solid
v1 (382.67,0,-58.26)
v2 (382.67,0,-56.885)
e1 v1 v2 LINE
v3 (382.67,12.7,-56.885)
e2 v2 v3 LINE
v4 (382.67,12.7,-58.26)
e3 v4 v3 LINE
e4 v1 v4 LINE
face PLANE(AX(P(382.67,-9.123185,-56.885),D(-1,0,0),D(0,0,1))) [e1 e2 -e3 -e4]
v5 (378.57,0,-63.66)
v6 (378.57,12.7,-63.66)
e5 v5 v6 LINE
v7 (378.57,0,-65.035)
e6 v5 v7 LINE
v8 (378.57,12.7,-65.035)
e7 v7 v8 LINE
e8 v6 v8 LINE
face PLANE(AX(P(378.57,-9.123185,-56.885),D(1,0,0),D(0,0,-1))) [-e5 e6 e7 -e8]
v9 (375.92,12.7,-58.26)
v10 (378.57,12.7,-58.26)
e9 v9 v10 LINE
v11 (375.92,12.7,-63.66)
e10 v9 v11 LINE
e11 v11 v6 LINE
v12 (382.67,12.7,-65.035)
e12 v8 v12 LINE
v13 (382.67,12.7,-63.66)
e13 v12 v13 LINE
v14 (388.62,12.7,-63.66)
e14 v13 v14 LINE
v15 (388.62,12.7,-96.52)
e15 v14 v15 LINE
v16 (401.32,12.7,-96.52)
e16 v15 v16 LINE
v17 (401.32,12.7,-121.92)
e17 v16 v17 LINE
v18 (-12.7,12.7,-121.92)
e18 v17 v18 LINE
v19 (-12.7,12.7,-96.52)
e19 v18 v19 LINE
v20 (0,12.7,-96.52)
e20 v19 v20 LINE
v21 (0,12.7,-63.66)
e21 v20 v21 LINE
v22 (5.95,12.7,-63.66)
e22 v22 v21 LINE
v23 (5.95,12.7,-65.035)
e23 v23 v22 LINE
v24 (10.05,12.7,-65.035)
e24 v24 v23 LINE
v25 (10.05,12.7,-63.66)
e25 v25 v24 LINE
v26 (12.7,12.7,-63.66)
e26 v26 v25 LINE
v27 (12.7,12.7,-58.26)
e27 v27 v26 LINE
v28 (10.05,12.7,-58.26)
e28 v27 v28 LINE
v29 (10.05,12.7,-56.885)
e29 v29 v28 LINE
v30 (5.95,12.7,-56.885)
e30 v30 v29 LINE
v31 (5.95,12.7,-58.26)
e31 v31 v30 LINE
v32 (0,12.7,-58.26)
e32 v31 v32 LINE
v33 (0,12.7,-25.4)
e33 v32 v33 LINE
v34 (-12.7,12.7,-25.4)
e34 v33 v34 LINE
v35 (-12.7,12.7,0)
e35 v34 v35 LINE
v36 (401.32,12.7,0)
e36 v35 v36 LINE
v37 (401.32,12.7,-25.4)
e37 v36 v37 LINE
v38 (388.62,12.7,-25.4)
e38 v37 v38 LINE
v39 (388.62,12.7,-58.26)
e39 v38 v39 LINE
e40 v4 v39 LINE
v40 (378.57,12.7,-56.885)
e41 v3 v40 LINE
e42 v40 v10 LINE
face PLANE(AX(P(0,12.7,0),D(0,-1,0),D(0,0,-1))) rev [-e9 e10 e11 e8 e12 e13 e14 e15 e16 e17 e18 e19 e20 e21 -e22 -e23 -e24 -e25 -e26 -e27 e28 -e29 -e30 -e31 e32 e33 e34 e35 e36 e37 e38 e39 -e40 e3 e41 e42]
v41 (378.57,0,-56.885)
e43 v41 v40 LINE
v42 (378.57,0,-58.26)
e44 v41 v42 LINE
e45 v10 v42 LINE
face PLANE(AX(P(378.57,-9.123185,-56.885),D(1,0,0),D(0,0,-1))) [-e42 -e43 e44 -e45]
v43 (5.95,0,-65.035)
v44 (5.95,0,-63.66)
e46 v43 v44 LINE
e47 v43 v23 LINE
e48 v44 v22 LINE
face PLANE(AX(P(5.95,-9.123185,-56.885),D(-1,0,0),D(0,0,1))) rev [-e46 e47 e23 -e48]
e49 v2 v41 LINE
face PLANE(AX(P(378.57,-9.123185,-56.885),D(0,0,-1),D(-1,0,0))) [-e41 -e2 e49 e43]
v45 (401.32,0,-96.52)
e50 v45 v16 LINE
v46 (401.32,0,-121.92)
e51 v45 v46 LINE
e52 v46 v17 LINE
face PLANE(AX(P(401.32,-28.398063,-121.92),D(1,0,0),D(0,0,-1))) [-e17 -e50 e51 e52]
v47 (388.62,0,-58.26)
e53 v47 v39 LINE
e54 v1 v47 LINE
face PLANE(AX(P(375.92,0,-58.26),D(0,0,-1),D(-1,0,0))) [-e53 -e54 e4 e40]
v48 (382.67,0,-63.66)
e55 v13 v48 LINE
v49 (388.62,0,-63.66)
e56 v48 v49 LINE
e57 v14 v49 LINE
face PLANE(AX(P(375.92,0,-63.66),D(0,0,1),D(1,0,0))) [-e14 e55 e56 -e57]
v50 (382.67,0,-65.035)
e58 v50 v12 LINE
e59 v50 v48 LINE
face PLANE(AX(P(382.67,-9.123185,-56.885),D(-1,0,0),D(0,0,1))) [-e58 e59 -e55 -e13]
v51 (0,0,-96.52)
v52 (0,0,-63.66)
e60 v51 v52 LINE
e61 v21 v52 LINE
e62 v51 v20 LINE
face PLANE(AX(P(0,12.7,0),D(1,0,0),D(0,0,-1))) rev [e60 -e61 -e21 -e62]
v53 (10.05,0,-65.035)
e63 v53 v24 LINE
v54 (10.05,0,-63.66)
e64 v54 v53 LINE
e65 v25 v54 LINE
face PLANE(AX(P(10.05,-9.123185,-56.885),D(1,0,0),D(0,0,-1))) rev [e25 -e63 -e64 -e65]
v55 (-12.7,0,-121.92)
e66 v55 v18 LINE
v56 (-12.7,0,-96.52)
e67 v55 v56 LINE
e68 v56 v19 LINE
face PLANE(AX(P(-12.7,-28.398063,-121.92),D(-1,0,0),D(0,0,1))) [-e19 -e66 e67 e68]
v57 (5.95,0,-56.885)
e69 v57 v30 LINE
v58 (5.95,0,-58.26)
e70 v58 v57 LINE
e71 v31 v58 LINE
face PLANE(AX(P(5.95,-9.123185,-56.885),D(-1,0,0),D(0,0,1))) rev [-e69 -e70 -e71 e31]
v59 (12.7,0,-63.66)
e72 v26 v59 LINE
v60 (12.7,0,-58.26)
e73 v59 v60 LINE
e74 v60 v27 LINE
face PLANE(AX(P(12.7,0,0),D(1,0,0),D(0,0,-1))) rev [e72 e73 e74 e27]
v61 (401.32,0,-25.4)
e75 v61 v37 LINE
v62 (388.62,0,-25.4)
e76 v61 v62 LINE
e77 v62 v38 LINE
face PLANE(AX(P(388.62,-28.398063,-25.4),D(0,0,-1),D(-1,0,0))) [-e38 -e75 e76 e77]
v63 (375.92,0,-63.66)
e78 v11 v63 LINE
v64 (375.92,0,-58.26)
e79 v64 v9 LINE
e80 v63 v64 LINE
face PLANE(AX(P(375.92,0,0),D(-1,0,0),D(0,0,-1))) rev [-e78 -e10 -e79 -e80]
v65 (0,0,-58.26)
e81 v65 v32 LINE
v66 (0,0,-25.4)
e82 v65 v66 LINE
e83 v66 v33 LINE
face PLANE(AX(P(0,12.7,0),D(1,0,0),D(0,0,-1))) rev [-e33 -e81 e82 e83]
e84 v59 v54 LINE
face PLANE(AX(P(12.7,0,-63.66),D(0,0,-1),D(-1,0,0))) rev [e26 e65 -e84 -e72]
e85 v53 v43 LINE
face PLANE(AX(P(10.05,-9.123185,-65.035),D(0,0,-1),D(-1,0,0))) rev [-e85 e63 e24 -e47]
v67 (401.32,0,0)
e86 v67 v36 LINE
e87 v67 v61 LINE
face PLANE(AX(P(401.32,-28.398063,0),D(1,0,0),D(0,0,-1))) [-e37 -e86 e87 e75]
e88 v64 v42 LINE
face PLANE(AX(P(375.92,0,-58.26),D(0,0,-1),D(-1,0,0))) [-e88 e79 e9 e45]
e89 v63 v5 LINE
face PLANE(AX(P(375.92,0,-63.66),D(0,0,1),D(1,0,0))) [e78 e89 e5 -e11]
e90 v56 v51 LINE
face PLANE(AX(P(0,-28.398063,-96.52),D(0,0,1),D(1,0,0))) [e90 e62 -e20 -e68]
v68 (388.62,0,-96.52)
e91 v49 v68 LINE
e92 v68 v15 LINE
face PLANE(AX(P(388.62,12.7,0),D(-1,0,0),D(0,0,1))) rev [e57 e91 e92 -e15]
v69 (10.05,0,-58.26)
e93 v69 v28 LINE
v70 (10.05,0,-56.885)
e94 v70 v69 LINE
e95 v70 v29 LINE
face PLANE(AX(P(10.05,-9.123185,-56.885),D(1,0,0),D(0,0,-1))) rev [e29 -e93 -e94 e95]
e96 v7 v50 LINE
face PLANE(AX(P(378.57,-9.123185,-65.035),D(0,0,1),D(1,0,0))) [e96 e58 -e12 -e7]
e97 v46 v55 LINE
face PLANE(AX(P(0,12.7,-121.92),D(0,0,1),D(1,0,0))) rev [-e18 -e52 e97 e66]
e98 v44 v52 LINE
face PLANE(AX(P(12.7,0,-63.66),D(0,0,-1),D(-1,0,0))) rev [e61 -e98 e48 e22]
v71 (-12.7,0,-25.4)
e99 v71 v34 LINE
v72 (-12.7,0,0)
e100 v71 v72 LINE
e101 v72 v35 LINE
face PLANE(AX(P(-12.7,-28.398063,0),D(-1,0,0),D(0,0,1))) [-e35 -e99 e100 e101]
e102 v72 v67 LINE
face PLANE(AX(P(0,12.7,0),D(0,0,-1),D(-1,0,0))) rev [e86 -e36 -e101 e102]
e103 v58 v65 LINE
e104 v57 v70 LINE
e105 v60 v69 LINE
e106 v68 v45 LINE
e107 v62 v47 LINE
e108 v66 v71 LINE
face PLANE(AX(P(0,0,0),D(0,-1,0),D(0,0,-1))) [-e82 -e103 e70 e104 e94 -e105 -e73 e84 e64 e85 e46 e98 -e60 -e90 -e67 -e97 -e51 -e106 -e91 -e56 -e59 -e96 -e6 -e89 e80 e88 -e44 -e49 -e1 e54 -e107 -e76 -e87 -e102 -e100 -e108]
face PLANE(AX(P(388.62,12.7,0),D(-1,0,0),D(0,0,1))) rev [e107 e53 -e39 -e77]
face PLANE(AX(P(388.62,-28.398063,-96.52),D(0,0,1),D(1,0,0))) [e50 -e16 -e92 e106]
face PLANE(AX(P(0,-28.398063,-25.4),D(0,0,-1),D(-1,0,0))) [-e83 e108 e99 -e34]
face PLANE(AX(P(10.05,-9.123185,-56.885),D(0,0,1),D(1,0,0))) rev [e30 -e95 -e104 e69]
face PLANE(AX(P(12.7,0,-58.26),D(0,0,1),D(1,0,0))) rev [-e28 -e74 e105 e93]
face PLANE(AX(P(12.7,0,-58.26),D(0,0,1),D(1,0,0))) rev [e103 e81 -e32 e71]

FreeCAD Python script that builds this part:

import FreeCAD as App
import Part
import Sketcher
from FreeCAD import Vector
Q = App.Units.Quantity

doc = App.newDocument("Part")
body = doc.addObject("PartDesign::Body", "Body")

# Sketch on XZ plane
sketch1 = body.newObject("Sketcher::SketchObject", "Sketch")
sketch1.AttachmentSupport = (doc.getObject("XZ_Plane"), [""])
sketch1.MapMode = "FlatFace"
sketch1.addGeometry(Part.LineSegment(Vector(0, -122, 0), Vector(0, 0, 0)), False)
sketch1.addGeometry(Part.LineSegment(Vector(0, 0, 0), Vector(389, 0, 0)), False)
sketch1.addGeometry(Part.LineSegment(Vector(389, 0, 0), Vector(389, -122, 0)), False)
sketch1.addGeometry(Part.LineSegment(Vector(389, -122, 0), Vector(0, -122, 0)), False)
sketch1.addConstraint(Sketcher.Constraint("Coincident", 0, 2, 1, 1))
sketch1.addConstraint(Sketcher.Constraint("Coincident", 1, 2, 2, 1))
sketch1.addConstraint(Sketcher.Constraint("Coincident", 2, 2, 3, 1))
sketch1.addConstraint(Sketcher.Constraint("Coincident", 3, 2, 0, 1))
sketch1.addConstraint(Sketcher.Constraint("Vertical", 0))
sketch1.addConstraint(Sketcher.Constraint("Horizontal", 1))
sketch1.addConstraint(Sketcher.Constraint("Vertical", 2))
sketch1.addConstraint(Sketcher.Constraint("Horizontal", 3))
sketch1.addConstraint(Sketcher.Constraint("Coincident", 0, 2, -1, 1))
sketch1.addConstraint(Sketcher.Constraint("DistanceX", 1, 1, 1, 2, Q("15.3 in")))
sketch1.addConstraint(Sketcher.Constraint("DistanceY", 0, 1, 0, 2, Q("4.8 in")))
pad1 = body.newObject("PartDesign::Pad", "Pad")
pad1.Profile = sketch1
pad1.Length = Q("0.5 in")
pad1.Reversed = True

# Sketch on XZ plane
sketch2 = body.newObject("Sketcher::SketchObject", "Sketch001")
sketch2.AttachmentSupport = (doc.getObject("XZ_Plane"), [""])
sketch2.MapMode = "FlatFace"
sketch2.AttachmentOffset = App.Placement(Vector(0, 0, -0.5 * 25.4), App.Rotation())
sketch2.addGeometry(Part.LineSegment(Vector(-13, -122, 0), Vector(-13, -97, 0)), False)
sketch2.addGeometry(Part.LineSegment(Vector(-13, -97, 0), Vector(0, -97, 0)), False)
sketch2.addGeometry(Part.LineSegment(Vector(0, -97, 0), Vector(0, -122, 0)), False)
sketch2.addGeometry(Part.LineSegment(Vector(0, -122, 0), Vector(-13, -122, 0)), False)
sketch2.addGeometry(Part.LineSegment(Vector(-13, -25, 0), Vector(-13, 0, 0)), False)
sketch2.addGeometry(Part.LineSegment(Vector(-13, 0, 0), Vector(0, 0, 0)), False)
sketch2.addGeometry(Part.LineSegment(Vector(0, 0, 0), Vector(0, -25, 0)), False)
sketch2.addGeometry(Part.LineSegment(Vector(0, -25, 0), Vector(-13, -25, 0)), False)
sketch2.addGeometry(Part.LineSegment(Vector(389, -25, 0), Vector(389, 0, 0)), False)
sketch2.addGeometry(Part.LineSegment(Vector(389, 0, 0), Vector(401, 0, 0)), False)
sketch2.addGeometry(Part.LineSegment(Vector(401, 0, 0), Vector(401, -25, 0)), False)
sketch2.addGeometry(Part.LineSegment(Vector(401, -25, 0), Vector(389, -25, 0)), False)
sketch2.addGeometry(Part.LineSegment(Vector(389, -122, 0), Vector(389, -97, 0)), False)
sketch2.addGeometry(Part.LineSegment(Vector(389, -97, 0), Vector(401, -97, 0)), False)
sketch2.addGeometry(Part.LineSegment(Vector(401, -97, 0), Vector(401, -122, 0)), False)
sketch2.addGeometry(Part.LineSegment(Vector(401, -122, 0), Vector(389, -122, 0)), False)
sketch2.addConstraint(Sketcher.Constraint("Coincident", 0, 2, 1, 1))
sketch2.addConstraint(Sketcher.Constraint("Coincident", 1, 2, 2, 1))
sketch2.addConstraint(Sketcher.Constraint("Coincident", 2, 2, 3, 1))
sketch2.addConstraint(Sketcher.Constraint("Coincident", 3, 2, 0, 1))
sketch2.addConstraint(Sketcher.Constraint("Coincident", 4, 2, 5, 1))
sketch2.addConstraint(Sketcher.Constraint("Coincident", 5, 2, 6, 1))
sketch2.addConstraint(Sketcher.Constraint("Coincident", 6, 2, 7, 1))
sketch2.addConstraint(Sketcher.Constraint("Coincident", 7, 2, 4, 1))
sketch2.addConstraint(Sketcher.Constraint("Coincident", 8, 2, 9, 1))
sketch2.addConstraint(Sketcher.Constraint("Coincident", 9, 2, 10, 1))
sketch2.addConstraint(Sketcher.Constraint("Coincident", 10, 2, 11, 1))
sketch2.addConstraint(Sketcher.Constraint("Coincident", 11, 2, 8, 1))
sketch2.addConstraint(Sketcher.Constraint("Coincident", 12, 2, 13, 1))
sketch2.addConstraint(Sketcher.Constraint("Coincident", 13, 2, 14, 1))
sketch2.addConstraint(Sketcher.Constraint("Coincident", 14, 2, 15, 1))
sketch2.addConstraint(Sketcher.Constraint("Coincident", 15, 2, 12, 1))
sketch2.addConstraint(Sketcher.Constraint("Vertical", 0))
sketch2.addConstraint(Sketcher.Constraint("Horizontal", 1))
sketch2.addConstraint(Sketcher.Constraint("Vertical", 2))
sketch2.addConstraint(Sketcher.Constraint("Horizontal", 3))
sketch2.addConstraint(Sketcher.Constraint("Vertical", 4))
sketch2.addConstraint(Sketcher.Constraint("Horizontal", 5))
sketch2.addConstraint(Sketcher.Constraint("Vertical", 6))
sketch2.addConstraint(Sketcher.Constraint("Horizontal", 7))
sketch2.addConstraint(Sketcher.Constraint("Vertical", 8))
sketch2.addConstraint(Sketcher.Constraint("Horizontal", 9))
sketch2.addConstraint(Sketcher.Constraint("Vertical", 10))
sketch2.addConstraint(Sketcher.Constraint("Horizontal", 11))
sketch2.addConstraint(Sketcher.Constraint("Vertical", 12))
sketch2.addConstraint(Sketcher.Constraint("Horizontal", 13))
sketch2.addConstraint(Sketcher.Constraint("Vertical", 14))
sketch2.addConstraint(Sketcher.Constraint("Horizontal", 15))
sketch2.addConstraint(Sketcher.Constraint("Coincident", 5, 2, -1, 1))
sketch2.addConstraint(Sketcher.Constraint("PointOnObject", 1, 2, -2))
sketch2.addConstraint(Sketcher.Constraint("PointOnObject", 8, 2, -1))
sketch2.addConstraint(Sketcher.Constraint("Horizontal", 7, 2, 10, 2))
sketch2.addConstraint(Sketcher.Constraint("Horizontal", 1, 2, 12, 2))
sketch2.addConstraint(Sketcher.Constraint("Horizontal", 3, 2, 14, 2))
sketch2.addConstraint(Sketcher.Constraint("Vertical", 3, 2, 4, 2))
sketch2.addConstraint(Sketcher.Constraint("Vertical", 11, 2, 12, 2))
sketch2.addConstraint(Sketcher.Constraint("Vertical", 10, 2, 13, 2))
sketch2.addConstraint(Sketcher.Constraint("Equal", 7, 9))
sketch2.addConstraint(Sketcher.Constraint("Equal", 2, 4))
sketch2.addConstraint(Sketcher.Constraint("DistanceY", 0, 1, 0, 2, Q("1 in")))
sketch2.addConstraint(Sketcher.Constraint("DistanceX", 1, 1, 1, 2, Q("0.5 in")))
sketch2.addConstraint(Sketcher.Constraint("DistanceY", 0, 2, -1, 1, Q("3.8 in")))
sketch2.addConstraint(Sketcher.Constraint("DistanceX", -1, 1, 8, 2, Q("15.3 in")))
pad2 = body.newObject("PartDesign::Pad", "Pad001")
pad2.Profile = sketch2
pad2.Length = Q("0.5 in")

# Sketch on YZ plane
sketch3 = body.newObject("Sketcher::SketchObject", "Sketch002")
sketch3.AttachmentSupport = (doc.getObject("YZ_Plane"), [""])
sketch3.MapMode = "FlatFace"
sketch3.addGeometry(Part.LineSegment(Vector(13, -64, 0), Vector(0, -64, 0)), False)
sketch3.addGeometry(Part.LineSegment(Vector(0, -64, 0), Vector(0, -58, 0)), False)
sketch3.addGeometry(Part.LineSegment(Vector(0, -58, 0), Vector(13, -58, 0)), False)
sketch3.addGeometry(Part.LineSegment(Vector(13, -58, 0), Vector(13, -64, 0)), False)
sketch3.addConstraint(Sketcher.Constraint("Coincident", 0, 2, 1, 1))
sketch3.addConstraint(Sketcher.Constraint("Coincident", 1, 2, 2, 1))
sketch3.addConstraint(Sketcher.Constraint("Coincident", 2, 2, 3, 1))
sketch3.addConstraint(Sketcher.Constraint("Coincident", 3, 2, 0, 1))
sketch3.addConstraint(Sketcher.Constraint("Horizontal", 0))
sketch3.addConstraint(Sketcher.Constraint("Vertical", 1))
sketch3.addConstraint(Sketcher.Constraint("Horizontal", 2))
sketch3.addConstraint(Sketcher.Constraint("Vertical", 3))
sketch3.addConstraint(Sketcher.Constraint("PointOnObject", 0, 2, -2))
sketch3.addConstraint(Sketcher.Constraint("DistanceX", 0, 2, 0, 1, Q("0.5 in")))
sketch3.addConstraint(Sketcher.Constraint("DistanceY", 1, 1, 1, 2, Q("5.4 mm")))
sketch3.addConstraint(Sketcher.Constraint("DistanceY", 0, 2, -1, 1, Q("63.66 mm")))
pocket1 = body.newObject("PartDesign::Pocket", "Pocket")
pocket1.Profile = sketch3
pocket1.Length = Q("0.5 in")
pocket1.Reversed = True

# Sketch on XZ plane
sketch4 = body.newObject("Sketcher::SketchObject", "Sketch003")
sketch4.AttachmentSupport = (doc.getObject("XZ_Plane"), [""])
sketch4.MapMode = "FlatFace"
sketch4.AttachmentOffset = App.Placement(Vector(0, 0, -0.5 * 25.4), App.Rotation())
sketch4.addGeometry(Part.LineSegment(Vector(6, -65, 0), Vector(6, -56.9, 0)), False)
sketch4.addGeometry(Part.LineSegment(Vector(6, -56.9, 0), Vector(10.1, -56.9, 0)), False)
sketch4.addGeometry(Part.LineSegment(Vector(10.1, -56.9, 0), Vector(10.1, -65, 0)), False)
sketch4.addGeometry(Part.LineSegment(Vector(10.1, -65, 0), Vector(6, -65, 0)), False)
sketch4.addConstraint(Sketcher.Constraint("Coincident", 0, 2, 1, 1))
sketch4.addConstraint(Sketcher.Constraint("Coincident", 1, 2, 2, 1))
sketch4.addConstraint(Sketcher.Constraint("Coincident", 2, 2, 3, 1))
sketch4.addConstraint(Sketcher.Constraint("Coincident", 3, 2, 0, 1))
sketch4.addConstraint(Sketcher.Constraint("Vertical", 0))
sketch4.addConstraint(Sketcher.Constraint("Horizontal", 1))
sketch4.addConstraint(Sketcher.Constraint("Vertical", 2))
sketch4.addConstraint(Sketcher.Constraint("Horizontal", 3))
sketch4.addConstraint(Sketcher.Constraint("DistanceX", 1, 1, 1, 2, Q("4.1 mm")))
sketch4.addConstraint(Sketcher.Constraint("DistanceY", 0, 1, 0, 2, Q("8.15 mm")))
sketch4.addConstraint(Sketcher.Constraint("DistanceX", -1, 1, 0, 2, Q("5.95 mm")))
sketch4.addConstraint(Sketcher.Constraint("DistanceY", 0, 2, -1, 1, Q("56.885 mm")))
pocket2 = body.newObject("PartDesign::Pocket", "Pocket001")
pocket2.Profile = sketch4
pocket2.Length = Q("0.5 in")
pocket2.Reversed = True
doc.recompute()

datumplane = body.newObject("PartDesign::Plane", "DatumPlane")
datumplane.AttachmentSupport = (doc.getObject("YZ_Plane"), [""])
datumplane.MapMode = "FlatFace"
datumplane.AttachmentOffset = App.Placement(Vector(0, 0, 7.65 * 25.4), App.Rotation())
mirrored = body.newObject("PartDesign::Mirrored", "Mirrored")
mirrored.Originals = [pocket1, pocket2]
mirrored.MirrorPlane = (datumplane, [""])
body.Tip = mirrored

doc.recompute()
